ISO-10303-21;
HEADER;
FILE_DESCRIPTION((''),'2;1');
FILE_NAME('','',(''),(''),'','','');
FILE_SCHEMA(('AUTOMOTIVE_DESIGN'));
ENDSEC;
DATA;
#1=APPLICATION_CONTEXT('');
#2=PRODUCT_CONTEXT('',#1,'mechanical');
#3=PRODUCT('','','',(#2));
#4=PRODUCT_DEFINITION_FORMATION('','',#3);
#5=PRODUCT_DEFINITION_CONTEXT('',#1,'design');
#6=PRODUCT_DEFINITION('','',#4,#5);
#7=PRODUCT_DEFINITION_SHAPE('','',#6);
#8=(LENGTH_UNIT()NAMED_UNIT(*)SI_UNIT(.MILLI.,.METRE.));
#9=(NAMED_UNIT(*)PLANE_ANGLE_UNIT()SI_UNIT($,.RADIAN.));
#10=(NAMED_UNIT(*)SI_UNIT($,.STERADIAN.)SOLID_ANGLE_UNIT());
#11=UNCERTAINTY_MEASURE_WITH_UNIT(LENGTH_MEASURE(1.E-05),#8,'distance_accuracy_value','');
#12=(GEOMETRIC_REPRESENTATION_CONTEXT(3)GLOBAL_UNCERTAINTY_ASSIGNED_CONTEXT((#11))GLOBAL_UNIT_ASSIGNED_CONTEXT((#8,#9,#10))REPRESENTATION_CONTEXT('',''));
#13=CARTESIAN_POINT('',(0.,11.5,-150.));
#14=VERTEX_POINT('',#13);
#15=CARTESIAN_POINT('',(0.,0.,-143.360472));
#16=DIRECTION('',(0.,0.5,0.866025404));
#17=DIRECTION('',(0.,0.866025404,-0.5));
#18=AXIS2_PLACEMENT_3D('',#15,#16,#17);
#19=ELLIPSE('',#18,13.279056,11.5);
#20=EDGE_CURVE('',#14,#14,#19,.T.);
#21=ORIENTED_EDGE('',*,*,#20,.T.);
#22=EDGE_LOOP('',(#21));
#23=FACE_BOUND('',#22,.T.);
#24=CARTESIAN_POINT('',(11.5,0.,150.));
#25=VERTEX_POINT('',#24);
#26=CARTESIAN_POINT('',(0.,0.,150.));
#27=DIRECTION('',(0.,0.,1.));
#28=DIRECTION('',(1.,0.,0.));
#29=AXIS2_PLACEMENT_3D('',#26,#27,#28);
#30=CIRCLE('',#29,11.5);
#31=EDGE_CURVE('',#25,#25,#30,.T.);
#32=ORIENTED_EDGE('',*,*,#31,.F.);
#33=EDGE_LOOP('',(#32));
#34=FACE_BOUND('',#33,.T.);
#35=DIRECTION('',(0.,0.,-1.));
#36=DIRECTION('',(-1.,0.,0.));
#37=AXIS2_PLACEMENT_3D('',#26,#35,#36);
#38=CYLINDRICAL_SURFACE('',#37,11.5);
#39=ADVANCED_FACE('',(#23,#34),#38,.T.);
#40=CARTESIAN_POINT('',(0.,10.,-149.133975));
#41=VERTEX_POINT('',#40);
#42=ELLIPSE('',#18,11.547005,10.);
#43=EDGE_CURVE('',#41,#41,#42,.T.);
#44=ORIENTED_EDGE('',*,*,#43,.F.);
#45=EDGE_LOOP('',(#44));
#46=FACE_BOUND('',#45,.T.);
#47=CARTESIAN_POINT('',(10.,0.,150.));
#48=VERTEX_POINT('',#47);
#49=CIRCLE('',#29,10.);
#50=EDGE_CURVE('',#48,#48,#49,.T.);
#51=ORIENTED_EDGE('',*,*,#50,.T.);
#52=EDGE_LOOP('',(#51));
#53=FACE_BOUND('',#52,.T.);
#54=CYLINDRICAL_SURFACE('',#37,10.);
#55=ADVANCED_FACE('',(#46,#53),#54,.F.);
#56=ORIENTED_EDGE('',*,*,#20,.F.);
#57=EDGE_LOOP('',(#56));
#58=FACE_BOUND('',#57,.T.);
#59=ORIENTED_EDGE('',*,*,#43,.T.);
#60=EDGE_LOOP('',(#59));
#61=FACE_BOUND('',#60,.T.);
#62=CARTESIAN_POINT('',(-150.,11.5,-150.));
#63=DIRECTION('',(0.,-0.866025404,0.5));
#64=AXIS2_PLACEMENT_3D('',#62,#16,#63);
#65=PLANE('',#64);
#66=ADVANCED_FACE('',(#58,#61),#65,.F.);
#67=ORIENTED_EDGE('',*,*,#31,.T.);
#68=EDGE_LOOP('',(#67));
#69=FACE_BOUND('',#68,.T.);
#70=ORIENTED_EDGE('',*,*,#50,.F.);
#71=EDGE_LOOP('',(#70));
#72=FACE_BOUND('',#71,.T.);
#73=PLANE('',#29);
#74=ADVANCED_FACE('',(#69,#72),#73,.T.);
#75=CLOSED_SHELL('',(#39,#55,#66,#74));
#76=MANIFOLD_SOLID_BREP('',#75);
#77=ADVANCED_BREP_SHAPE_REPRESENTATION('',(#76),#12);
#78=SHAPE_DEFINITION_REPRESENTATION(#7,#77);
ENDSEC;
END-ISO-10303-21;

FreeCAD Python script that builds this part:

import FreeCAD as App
import Part
import Sketcher
from FreeCAD import Vector
Q = App.Units.Quantity


def add_polygon(sketch, points):
    """Adds a closed chain of lines whose ends are joined by coincident constraints."""
    first, n = sketch.GeometryCount, len(points)
    for a, b in zip(points, points[1:] + points[:1]):
        sketch.addGeometry(Part.LineSegment(App.Vector(*a, 0), App.Vector(*b, 0)), False)
    for i in range(n):
        sketch.addConstraint(Sketcher.Constraint("Coincident", first + i, 2, first + (i + 1) % n, 1))

doc = App.newDocument("Part")
body = doc.addObject("PartDesign::Body", "Body")

# Sketch on XY plane
sketch1 = body.newObject("Sketcher::SketchObject", "Sketch")
sketch1.AttachmentSupport = (doc.getObject("XY_Plane"), [""])
sketch1.MapMode = "FlatFace"
sketch1.addGeometry([
    Part.Circle(Vector(0, 0, 0), Vector(0, 0, 1), 12),
    Part.Circle(Vector(0, 0, 0), Vector(0, 0, 1), 10),
], False)
sketch1.addConstraint([
    Sketcher.Constraint("Coincident", 0, 3, -1, 1),
    Sketcher.Constraint("Coincident", 1, 3, -1, 1),
    Sketcher.Constraint("Diameter", 0, 23.0),
    Sketcher.Constraint("Diameter", 1, 20.0),
])
pad1 = body.newObject("PartDesign::Pad", "Pad")
pad1.Profile = sketch1
pad1.Length = 300
pad1.Midplane = True

# Sketch on YZ plane
sketch2 = body.newObject("Sketcher::SketchObject", "Sketch001")
sketch2.AttachmentSupport = (doc.getObject("YZ_Plane"), [""])
sketch2.MapMode = "FlatFace"
add_polygon(sketch2, [(12, -150), (-12, -137), (-12, -150)])  # lines 0-2
sketch2.addConstraint([
    Sketcher.Constraint("Vertical", 1),
    Sketcher.Constraint("Horizontal", 2),
    Sketcher.Constraint("DistanceX", 2, 1, 2, 2, 23.0),
    Sketcher.Constraint("Angle", 0, Q("150 deg")),
    Sketcher.Constraint("DistanceY", 1, 2, -1, 1, 150.0),
    Sketcher.Constraint("DistanceX", 0, 2, -1, 1, 11.5),
])
pocket1 = body.newObject("PartDesign::Pocket", "Pocket")
pocket1.Profile = sketch2
pocket1.Length = 300
pocket1.Midplane = True

doc.recompute()
